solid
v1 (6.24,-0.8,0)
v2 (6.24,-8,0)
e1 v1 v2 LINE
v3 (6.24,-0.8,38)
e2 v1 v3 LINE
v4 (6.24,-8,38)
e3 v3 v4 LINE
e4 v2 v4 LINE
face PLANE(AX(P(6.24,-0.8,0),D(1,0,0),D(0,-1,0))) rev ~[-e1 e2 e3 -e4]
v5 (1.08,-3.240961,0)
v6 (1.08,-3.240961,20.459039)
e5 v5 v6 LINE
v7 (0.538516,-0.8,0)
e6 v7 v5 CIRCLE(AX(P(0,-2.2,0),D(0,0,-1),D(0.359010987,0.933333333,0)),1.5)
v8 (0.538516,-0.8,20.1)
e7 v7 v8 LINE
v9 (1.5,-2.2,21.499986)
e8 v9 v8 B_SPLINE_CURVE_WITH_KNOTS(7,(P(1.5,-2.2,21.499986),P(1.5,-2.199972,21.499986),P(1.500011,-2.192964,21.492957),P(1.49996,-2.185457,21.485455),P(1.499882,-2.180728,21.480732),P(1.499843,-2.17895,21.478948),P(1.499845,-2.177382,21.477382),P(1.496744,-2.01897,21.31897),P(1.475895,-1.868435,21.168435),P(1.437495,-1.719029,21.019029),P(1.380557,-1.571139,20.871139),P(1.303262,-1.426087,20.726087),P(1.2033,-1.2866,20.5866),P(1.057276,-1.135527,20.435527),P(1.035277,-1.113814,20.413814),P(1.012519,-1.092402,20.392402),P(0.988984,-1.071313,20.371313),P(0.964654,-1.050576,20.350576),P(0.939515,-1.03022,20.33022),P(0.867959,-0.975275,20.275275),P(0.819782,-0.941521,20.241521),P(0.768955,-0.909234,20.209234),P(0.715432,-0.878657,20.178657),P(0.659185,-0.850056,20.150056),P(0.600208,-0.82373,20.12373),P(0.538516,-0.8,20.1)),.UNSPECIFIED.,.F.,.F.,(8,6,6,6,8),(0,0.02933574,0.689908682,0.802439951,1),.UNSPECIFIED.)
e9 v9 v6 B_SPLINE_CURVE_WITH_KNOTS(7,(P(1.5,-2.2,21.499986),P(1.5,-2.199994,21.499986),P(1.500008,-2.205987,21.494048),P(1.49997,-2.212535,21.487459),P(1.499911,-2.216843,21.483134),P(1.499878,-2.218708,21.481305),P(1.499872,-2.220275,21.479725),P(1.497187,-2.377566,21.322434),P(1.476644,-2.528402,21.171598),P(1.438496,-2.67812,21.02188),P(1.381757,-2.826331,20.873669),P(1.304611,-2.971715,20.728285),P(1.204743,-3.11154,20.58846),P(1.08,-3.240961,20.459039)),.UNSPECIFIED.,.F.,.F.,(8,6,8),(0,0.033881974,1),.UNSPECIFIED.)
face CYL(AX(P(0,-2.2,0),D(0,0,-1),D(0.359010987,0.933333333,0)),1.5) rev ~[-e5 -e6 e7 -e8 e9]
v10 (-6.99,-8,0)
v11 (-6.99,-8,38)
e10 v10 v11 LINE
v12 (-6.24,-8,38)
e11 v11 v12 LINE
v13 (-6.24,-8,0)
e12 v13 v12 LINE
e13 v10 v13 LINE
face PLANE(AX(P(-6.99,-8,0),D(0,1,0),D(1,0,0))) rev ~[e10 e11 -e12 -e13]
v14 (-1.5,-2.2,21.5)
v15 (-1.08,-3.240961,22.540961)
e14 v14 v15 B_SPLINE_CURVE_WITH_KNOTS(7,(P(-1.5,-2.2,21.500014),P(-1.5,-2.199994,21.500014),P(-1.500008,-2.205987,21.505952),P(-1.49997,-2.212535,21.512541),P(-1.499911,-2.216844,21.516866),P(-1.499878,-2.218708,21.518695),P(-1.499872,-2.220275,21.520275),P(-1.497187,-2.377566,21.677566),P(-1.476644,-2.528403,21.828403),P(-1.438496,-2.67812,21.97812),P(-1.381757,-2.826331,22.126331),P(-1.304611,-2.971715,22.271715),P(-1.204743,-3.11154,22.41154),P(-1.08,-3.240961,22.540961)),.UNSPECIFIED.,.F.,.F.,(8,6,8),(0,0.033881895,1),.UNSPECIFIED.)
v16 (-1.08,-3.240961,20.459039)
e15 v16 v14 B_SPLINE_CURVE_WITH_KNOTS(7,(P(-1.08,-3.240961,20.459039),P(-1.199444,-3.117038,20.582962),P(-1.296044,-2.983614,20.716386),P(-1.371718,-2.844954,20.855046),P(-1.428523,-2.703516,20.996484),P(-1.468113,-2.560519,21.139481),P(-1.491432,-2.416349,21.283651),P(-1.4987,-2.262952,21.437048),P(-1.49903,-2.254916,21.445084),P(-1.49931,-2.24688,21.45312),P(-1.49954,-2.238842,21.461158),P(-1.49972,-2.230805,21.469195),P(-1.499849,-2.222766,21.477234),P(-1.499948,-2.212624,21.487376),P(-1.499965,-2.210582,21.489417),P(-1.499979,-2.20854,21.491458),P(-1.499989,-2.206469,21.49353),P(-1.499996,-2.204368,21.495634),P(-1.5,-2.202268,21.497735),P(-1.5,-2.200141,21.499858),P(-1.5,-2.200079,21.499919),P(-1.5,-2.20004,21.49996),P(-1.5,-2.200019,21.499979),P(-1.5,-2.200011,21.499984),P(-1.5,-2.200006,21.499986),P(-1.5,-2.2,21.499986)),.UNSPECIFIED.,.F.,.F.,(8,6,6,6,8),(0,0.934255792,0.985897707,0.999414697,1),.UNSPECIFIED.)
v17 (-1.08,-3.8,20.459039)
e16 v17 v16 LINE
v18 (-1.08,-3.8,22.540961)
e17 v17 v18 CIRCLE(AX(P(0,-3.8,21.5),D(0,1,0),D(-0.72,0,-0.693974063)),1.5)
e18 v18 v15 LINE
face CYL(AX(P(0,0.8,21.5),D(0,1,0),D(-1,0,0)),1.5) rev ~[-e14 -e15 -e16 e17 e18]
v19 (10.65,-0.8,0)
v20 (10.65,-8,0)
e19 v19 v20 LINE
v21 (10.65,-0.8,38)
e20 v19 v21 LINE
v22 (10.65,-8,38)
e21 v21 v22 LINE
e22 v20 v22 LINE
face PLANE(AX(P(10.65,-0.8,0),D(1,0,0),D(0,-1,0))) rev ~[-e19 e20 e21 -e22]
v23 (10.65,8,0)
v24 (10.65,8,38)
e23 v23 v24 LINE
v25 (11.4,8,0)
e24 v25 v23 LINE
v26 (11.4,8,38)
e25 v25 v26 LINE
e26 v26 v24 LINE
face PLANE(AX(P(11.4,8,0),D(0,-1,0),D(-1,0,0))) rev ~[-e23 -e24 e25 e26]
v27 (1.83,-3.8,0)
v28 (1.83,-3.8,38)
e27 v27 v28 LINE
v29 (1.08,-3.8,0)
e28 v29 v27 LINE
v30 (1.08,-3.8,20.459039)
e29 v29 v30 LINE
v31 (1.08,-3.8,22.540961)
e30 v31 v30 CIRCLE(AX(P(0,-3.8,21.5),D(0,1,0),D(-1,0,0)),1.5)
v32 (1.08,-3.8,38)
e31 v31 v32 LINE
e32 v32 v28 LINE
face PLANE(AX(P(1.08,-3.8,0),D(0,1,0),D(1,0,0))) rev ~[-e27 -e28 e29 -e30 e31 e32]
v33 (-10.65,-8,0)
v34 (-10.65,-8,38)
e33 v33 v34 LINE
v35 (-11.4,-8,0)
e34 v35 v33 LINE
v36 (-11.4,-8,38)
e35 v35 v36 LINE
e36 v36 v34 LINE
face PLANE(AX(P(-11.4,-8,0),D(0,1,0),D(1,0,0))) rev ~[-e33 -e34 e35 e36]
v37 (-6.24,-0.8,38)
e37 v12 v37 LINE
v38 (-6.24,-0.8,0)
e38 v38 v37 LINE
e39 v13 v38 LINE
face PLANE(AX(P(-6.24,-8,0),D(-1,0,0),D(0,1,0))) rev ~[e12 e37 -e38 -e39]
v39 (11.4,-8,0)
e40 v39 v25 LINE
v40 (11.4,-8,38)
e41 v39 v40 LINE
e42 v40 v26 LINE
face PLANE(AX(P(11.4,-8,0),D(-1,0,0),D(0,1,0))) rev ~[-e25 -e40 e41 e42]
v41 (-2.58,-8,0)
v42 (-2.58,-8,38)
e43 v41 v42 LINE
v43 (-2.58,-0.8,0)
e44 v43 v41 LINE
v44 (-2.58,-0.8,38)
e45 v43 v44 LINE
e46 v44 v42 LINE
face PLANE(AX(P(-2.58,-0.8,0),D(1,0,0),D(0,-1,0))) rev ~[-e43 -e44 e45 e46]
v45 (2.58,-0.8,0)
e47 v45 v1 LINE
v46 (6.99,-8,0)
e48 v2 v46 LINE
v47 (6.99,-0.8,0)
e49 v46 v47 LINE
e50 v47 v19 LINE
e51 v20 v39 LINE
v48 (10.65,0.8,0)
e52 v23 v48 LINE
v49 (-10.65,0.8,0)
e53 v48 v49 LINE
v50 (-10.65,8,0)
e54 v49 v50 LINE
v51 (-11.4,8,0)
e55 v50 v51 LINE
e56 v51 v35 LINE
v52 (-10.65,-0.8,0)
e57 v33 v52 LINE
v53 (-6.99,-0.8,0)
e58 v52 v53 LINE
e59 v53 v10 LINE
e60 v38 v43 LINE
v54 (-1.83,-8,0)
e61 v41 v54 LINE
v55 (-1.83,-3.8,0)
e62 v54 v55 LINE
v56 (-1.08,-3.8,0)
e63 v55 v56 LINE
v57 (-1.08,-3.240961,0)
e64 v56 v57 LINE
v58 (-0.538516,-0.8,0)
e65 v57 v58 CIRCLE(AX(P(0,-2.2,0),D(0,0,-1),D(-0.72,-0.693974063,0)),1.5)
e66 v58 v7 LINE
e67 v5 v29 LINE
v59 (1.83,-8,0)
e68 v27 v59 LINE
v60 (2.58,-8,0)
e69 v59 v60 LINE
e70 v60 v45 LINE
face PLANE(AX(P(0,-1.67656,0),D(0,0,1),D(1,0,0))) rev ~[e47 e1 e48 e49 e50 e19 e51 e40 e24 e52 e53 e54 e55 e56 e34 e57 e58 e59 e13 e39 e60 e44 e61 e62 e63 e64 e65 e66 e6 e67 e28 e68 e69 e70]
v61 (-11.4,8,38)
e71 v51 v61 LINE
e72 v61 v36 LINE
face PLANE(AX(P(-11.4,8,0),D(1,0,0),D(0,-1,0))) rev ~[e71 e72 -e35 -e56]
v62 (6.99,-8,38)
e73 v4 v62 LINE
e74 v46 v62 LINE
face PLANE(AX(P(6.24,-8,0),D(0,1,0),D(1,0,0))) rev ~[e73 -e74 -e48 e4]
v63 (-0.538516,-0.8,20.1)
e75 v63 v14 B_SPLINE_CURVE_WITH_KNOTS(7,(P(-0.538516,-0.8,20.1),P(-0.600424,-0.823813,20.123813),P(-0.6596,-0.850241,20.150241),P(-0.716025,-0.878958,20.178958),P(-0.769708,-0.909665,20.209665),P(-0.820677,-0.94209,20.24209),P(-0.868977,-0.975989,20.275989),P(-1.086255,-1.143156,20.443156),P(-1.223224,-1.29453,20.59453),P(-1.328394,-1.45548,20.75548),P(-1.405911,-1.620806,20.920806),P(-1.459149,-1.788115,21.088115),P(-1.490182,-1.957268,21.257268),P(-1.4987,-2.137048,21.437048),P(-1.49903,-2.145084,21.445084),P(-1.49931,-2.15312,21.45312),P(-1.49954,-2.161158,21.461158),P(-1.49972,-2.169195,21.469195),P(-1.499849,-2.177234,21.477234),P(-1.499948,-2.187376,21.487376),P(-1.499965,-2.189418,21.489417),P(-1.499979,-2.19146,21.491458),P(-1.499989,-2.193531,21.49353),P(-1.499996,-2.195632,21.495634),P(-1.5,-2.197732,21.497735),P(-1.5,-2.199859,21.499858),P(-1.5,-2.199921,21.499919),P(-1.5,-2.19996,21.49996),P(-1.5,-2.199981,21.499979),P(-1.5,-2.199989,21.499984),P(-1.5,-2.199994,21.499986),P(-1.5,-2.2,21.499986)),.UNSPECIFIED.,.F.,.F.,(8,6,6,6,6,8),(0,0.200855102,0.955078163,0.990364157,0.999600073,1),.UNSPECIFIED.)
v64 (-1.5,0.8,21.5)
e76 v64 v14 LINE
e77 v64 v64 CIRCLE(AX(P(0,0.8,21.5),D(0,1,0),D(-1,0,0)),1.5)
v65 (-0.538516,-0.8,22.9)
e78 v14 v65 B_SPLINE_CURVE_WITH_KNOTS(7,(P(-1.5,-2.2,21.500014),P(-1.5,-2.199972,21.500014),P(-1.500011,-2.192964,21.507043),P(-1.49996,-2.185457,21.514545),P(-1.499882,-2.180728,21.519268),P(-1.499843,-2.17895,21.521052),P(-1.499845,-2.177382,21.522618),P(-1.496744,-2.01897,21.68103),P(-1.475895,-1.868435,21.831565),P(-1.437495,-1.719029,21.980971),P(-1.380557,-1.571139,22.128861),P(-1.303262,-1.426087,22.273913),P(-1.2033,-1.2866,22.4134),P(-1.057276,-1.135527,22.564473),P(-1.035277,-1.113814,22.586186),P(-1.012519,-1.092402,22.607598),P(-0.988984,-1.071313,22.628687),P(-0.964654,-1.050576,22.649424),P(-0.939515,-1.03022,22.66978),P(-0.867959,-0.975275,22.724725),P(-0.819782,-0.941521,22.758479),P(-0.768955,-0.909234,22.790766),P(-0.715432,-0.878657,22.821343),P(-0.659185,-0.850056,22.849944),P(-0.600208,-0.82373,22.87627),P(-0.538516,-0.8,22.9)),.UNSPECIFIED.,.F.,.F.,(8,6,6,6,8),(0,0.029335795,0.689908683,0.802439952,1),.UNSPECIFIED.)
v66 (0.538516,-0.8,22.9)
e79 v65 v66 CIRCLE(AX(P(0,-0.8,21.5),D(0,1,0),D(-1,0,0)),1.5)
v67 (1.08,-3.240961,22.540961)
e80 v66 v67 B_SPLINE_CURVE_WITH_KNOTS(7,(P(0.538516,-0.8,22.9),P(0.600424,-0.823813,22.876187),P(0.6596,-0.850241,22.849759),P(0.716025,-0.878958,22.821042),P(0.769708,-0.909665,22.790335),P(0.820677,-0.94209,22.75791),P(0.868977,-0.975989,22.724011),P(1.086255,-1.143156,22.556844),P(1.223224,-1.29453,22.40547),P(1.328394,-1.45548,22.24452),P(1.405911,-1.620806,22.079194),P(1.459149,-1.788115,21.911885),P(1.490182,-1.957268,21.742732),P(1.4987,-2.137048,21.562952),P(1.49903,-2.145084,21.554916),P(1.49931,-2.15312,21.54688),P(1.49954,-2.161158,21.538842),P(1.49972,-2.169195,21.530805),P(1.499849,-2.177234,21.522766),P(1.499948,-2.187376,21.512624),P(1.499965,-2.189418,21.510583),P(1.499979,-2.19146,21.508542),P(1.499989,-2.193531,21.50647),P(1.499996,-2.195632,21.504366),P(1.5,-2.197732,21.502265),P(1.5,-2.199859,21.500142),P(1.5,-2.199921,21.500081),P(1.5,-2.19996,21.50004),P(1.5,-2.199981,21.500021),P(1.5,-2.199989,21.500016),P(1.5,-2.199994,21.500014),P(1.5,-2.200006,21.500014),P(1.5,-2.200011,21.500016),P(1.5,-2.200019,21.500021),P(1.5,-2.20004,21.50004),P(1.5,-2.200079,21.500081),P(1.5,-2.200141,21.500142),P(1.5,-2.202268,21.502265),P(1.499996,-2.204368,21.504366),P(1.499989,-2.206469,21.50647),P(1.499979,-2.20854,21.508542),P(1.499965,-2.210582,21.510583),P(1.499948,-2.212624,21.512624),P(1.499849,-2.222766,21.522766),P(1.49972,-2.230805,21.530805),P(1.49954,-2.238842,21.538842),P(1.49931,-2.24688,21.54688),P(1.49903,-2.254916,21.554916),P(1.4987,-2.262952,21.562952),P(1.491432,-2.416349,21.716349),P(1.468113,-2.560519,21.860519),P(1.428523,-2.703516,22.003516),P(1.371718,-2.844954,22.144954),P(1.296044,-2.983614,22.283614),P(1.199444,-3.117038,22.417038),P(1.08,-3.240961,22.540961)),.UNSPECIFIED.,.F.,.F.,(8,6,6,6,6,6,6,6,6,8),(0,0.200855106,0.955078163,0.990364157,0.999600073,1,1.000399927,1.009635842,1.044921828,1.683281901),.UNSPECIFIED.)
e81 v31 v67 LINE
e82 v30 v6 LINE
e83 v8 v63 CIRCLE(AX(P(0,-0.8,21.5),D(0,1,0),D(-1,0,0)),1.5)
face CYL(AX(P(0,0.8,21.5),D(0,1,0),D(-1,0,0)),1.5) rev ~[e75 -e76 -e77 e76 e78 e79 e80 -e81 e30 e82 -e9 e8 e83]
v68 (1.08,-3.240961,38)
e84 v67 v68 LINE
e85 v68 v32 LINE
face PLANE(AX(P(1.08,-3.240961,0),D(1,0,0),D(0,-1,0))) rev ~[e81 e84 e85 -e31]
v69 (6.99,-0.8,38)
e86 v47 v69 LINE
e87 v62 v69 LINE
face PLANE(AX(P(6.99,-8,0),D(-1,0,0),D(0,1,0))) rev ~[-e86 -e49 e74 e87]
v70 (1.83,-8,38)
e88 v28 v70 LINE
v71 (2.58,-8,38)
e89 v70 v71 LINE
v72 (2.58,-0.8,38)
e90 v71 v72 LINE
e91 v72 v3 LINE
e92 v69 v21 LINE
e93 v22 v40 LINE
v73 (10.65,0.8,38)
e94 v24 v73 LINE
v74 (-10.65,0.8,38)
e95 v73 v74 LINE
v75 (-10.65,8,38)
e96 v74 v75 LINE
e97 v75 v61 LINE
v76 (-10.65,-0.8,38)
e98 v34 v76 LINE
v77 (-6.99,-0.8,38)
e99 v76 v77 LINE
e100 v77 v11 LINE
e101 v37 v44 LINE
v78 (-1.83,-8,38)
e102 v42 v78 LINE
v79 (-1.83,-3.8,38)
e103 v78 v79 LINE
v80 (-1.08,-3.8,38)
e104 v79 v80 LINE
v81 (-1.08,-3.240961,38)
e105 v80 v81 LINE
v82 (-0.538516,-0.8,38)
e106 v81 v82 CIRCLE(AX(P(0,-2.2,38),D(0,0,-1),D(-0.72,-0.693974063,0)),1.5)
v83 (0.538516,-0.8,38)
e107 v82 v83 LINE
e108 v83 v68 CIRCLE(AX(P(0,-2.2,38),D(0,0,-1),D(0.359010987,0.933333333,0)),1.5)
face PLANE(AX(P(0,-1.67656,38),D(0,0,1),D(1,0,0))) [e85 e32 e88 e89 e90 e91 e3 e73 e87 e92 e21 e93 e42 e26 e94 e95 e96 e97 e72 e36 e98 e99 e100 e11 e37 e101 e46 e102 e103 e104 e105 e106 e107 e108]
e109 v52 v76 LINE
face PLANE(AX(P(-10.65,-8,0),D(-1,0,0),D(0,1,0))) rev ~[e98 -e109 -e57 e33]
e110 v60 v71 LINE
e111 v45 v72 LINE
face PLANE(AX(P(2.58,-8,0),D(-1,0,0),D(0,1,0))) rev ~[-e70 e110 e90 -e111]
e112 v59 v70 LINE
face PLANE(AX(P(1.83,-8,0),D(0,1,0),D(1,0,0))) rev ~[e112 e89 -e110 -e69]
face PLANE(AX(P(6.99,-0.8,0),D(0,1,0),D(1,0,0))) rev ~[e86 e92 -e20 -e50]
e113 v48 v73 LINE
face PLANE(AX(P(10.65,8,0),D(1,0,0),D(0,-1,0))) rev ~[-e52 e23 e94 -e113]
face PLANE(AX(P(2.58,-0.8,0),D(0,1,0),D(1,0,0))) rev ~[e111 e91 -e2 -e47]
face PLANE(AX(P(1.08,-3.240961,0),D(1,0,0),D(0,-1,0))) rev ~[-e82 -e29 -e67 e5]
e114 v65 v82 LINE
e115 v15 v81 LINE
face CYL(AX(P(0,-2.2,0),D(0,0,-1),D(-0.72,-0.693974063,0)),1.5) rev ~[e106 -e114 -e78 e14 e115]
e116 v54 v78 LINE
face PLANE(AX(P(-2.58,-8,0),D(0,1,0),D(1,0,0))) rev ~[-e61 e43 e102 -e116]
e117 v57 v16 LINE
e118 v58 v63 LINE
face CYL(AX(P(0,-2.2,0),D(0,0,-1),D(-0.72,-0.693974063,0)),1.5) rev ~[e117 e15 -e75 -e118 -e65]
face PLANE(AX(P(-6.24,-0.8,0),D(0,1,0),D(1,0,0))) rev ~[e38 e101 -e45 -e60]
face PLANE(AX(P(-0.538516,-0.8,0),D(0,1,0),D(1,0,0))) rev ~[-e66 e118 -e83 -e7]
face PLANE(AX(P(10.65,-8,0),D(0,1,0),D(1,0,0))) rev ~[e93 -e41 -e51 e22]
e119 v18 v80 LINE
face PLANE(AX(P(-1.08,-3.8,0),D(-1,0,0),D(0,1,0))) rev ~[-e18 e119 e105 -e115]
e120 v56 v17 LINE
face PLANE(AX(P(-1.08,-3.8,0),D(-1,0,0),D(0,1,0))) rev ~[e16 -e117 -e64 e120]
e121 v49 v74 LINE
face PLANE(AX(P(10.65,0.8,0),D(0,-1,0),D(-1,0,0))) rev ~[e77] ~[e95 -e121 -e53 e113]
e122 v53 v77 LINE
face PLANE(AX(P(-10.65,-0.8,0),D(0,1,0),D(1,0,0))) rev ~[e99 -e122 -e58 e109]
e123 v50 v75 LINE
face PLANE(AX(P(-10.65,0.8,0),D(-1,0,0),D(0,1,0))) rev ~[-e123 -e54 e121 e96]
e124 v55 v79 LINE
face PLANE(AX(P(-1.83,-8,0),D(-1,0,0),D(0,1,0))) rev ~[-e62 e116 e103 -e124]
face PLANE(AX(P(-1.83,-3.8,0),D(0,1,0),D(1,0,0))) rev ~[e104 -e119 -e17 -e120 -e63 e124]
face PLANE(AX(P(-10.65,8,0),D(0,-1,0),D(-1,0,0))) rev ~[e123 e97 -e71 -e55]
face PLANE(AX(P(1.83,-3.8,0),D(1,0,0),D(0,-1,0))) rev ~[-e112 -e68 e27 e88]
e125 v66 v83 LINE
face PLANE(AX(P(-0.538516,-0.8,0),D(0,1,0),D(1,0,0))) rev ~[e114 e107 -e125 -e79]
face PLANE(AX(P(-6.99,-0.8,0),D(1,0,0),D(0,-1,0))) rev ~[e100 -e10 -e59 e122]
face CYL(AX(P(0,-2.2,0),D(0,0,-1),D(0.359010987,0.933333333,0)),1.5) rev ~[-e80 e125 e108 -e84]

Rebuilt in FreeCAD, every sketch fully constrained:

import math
import FreeCAD as App
import Part
import Sketcher

V = App.Vector
Q = App.Units.Quantity

doc = App.newDocument("Part")
body = doc.addObject("PartDesign::Body", "Body")

sketch1 = body.newObject("Sketcher::SketchObject", "Sketch")
sketch1.AttachmentSupport = (doc.getObject("XY_Plane"), [""])
sketch1.MapMode = "FlatFace"
sketch1.addGeometry([
    Part.LineSegment(V(10.7, -8, 0), V(11.4, -8, 0)),
    Part.LineSegment(V(11.4, -8, 0), V(11.4, 8, 0)),
    Part.LineSegment(V(11.4, 8, 0), V(10.7, 8, 0)),
    Part.LineSegment(V(10.7, 8, 0), V(10.7, 0.8, 0)),
    Part.LineSegment(V(10.7, 0.8, 0), V(-10.7, 0.8, 0)),
    Part.LineSegment(V(-10.7, 0.8, 0), V(-10.7, 8, 0)),
    Part.LineSegment(V(-10.7, 8, 0), V(-11.4, 8, 0)),
    Part.LineSegment(V(-11.4, 8, 0), V(-11.4, -8, 0)),
    Part.LineSegment(V(-11.4, -8, 0), V(-10.7, -8, 0)),
    Part.LineSegment(V(-10.7, -8, 0), V(-10.7, -0.8, 0)),
    Part.LineSegment(V(-10.7, -0.8, 0), V(-7, -0.8, 0)),
    Part.LineSegment(V(-7, -0.8, 0), V(-7, -8, 0)),
    Part.LineSegment(V(-7, -8, 0), V(-6.2, -8, 0)),
    Part.LineSegment(V(-6.2, -8, 0), V(-6.2, -0.8, 0)),
    Part.LineSegment(V(-6.2, -0.8, 0), V(-2.6, -0.8, 0)),
    Part.LineSegment(V(-2.6, -0.8, 0), V(-2.6, -8, 0)),
    Part.LineSegment(V(-2.6, -8, 0), V(-1.8, -8, 0)),
    Part.LineSegment(V(-1.8, -8, 0), V(-1.8, -3.8, 0)),
    Part.LineSegment(V(-1.8, -3.8, 0), V(-1.1, -3.8, 0)),
    Part.LineSegment(V(-1.1, -3.8, 0), V(-1.1, -3.2, 0)),
    Part.ArcOfCircle(Part.Circle(V(0, -2.2, 0), V(0, 0, 1), 1.5), math.radians(111), math.radians(224)),
    Part.LineSegment(V(-0.5, -0.8, 0), V(0.5, -0.8, 0)),
    Part.ArcOfCircle(Part.Circle(V(0, -2.2, 0), V(0, 0, 1), 1.5), math.radians(-44), math.radians(69)),
    Part.LineSegment(V(1.1, -3.2, 0), V(1.1, -3.8, 0)),
    Part.LineSegment(V(1.1, -3.8, 0), V(1.8, -3.8, 0)),
    Part.LineSegment(V(1.8, -3.8, 0), V(1.8, -8, 0)),
    Part.LineSegment(V(1.8, -8, 0), V(2.6, -8, 0)),
    Part.LineSegment(V(2.6, -8, 0), V(2.6, -0.8, 0)),
    Part.LineSegment(V(2.6, -0.8, 0), V(6.2, -0.8, 0)),
    Part.LineSegment(V(6.2, -0.8, 0), V(6.2, -8, 0)),
    Part.LineSegment(V(6.2, -8, 0), V(7, -8, 0)),
    Part.LineSegment(V(7, -8, 0), V(7, -0.8, 0)),
    Part.LineSegment(V(7, -0.8, 0), V(10.7, -0.8, 0)),
    Part.LineSegment(V(10.7, -0.8, 0), V(10.7, -8, 0)),
], False)
sketch1.addConstraint([
    Sketcher.Constraint("Coincident", 0, 2, 1, 1),
    Sketcher.Constraint("Coincident", 1, 2, 2, 1),
    Sketcher.Constraint("Coincident", 2, 2, 3, 1),
    Sketcher.Constraint("Coincident", 3, 2, 4, 1),
    Sketcher.Constraint("Coincident", 4, 2, 5, 1),
    Sketcher.Constraint("Coincident", 5, 2, 6, 1),
    Sketcher.Constraint("Coincident", 6, 2, 7, 1),
    Sketcher.Constraint("Coincident", 7, 2, 8, 1),
    Sketcher.Constraint("Coincident", 8, 2, 9, 1),
    Sketcher.Constraint("Coincident", 9, 2, 10, 1),
    Sketcher.Constraint("Coincident", 10, 2, 11, 1),
    Sketcher.Constraint("Coincident", 11, 2, 12, 1),
    Sketcher.Constraint("Coincident", 12, 2, 13, 1),
    Sketcher.Constraint("Coincident", 13, 2, 14, 1),
    Sketcher.Constraint("Coincident", 14, 2, 15, 1),
    Sketcher.Constraint("Coincident", 15, 2, 16, 1),
    Sketcher.Constraint("Coincident", 16, 2, 17, 1),
    Sketcher.Constraint("Coincident", 17, 2, 18, 1),
    Sketcher.Constraint("Coincident", 18, 2, 19, 1),
    Sketcher.Constraint("Coincident", 19, 2, 20, 2),
    Sketcher.Constraint("Coincident", 20, 1, 21, 1),
    Sketcher.Constraint("Coincident", 21, 2, 22, 2),
    Sketcher.Constraint("Coincident", 22, 1, 23, 1),
    Sketcher.Constraint("Coincident", 23, 2, 24, 1),
    Sketcher.Constraint("Coincident", 24, 2, 25, 1),
    Sketcher.Constraint("Coincident", 25, 2, 26, 1),
    Sketcher.Constraint("Coincident", 26, 2, 27, 1),
    Sketcher.Constraint("Coincident", 27, 2, 28, 1),
    Sketcher.Constraint("Coincident", 28, 2, 29, 1),
    Sketcher.Constraint("Coincident", 29, 2, 30, 1),
    Sketcher.Constraint("Coincident", 30, 2, 31, 1),
    Sketcher.Constraint("Coincident", 31, 2, 32, 1),
    Sketcher.Constraint("Coincident", 32, 2, 33, 1),
    Sketcher.Constraint("Coincident", 33, 2, 0, 1),
    Sketcher.Constraint("Horizontal", 0),
    Sketcher.Constraint("Vertical", 1),
    Sketcher.Constraint("Horizontal", 2),
    Sketcher.Constraint("Vertical", 3),
    Sketcher.Constraint("Horizontal", 4),
    Sketcher.Constraint("Vertical", 5),
    Sketcher.Constraint("Horizontal", 6),
    Sketcher.Constraint("Vertical", 7),
    Sketcher.Constraint("Horizontal", 8),
    Sketcher.Constraint("Vertical", 9),
    Sketcher.Constraint("Horizontal", 10),
    Sketcher.Constraint("Vertical", 11),
    Sketcher.Constraint("Horizontal", 12),
    Sketcher.Constraint("Vertical", 13),
    Sketcher.Constraint("Horizontal", 14),
    Sketcher.Constraint("Vertical", 15),
    Sketcher.Constraint("Horizontal", 16),
    Sketcher.Constraint("Vertical", 17),
    Sketcher.Constraint("Horizontal", 18),
    Sketcher.Constraint("Vertical", 19),
    Sketcher.Constraint("Horizontal", 21),
    Sketcher.Constraint("Vertical", 23),
    Sketcher.Constraint("Horizontal", 24),
    Sketcher.Constraint("Vertical", 25),
    Sketcher.Constraint("Horizontal", 26),
    Sketcher.Constraint("Vertical", 27),
    Sketcher.Constraint("Horizontal", 28),
    Sketcher.Constraint("Vertical", 29),
    Sketcher.Constraint("Horizontal", 30),
    Sketcher.Constraint("Vertical", 31),
    Sketcher.Constraint("Horizontal", 32),
    Sketcher.Constraint("Vertical", 33),
    Sketcher.Constraint("Coincident", 22, 3, 20, 3),
    Sketcher.Constraint("Equal", 20, 22),
    Sketcher.Constraint("Symmetric", 0, 2, 6, 2, -1, 1),
    Sketcher.Constraint("Symmetric", 2, 2, 8, 2, -1, 1),
    Sketcher.Constraint("Symmetric", 4, 2, 32, 2, -1, 1),
    Sketcher.Constraint("Symmetric", 2, 2, 5, 2, -2),
    Sketcher.Constraint("Symmetric", 19, 2, 22, 1, -2),
    Sketcher.Constraint("Symmetric", 17, 2, 24, 2, -2),
    Sketcher.Constraint("Symmetric", 15, 2, 26, 2, -2),
    Sketcher.Constraint("Symmetric", 13, 2, 28, 2, -2),
    Sketcher.Constraint("Symmetric", 11, 2, 30, 2, -2),
    Sketcher.Constraint("Horizontal", 8, 2, 11, 2),
    Sketcher.Constraint("Horizontal", 10, 2, 13, 2),
    Sketcher.Constraint("Horizontal", 12, 2, 15, 2),
    Sketcher.Constraint("Horizontal", 14, 2, 20, 1),
    Sketcher.Constraint("Horizontal", 28, 2, 31, 2),
    Sketcher.Constraint("Equal", 8, 12),
    Sketcher.Constraint("Equal", 10, 14),
    Sketcher.Constraint("Equal", 12, 16),
    Sketcher.Constraint("Equal", 16, 18),
    Sketcher.Constraint("Radius", 20, Q("1.5 mm")),
    Sketcher.Constraint("DistanceY", 1, 1, 1, 2, Q("16 mm")),
    Sketcher.Constraint("DistanceX", 4, 2, 4, 1, Q("21.3 mm")),
    Sketcher.Constraint("DistanceY", 3, 2, 3, 1, Q("7.2 mm")),
    Sketcher.Constraint("DistanceY", 17, 1, 17, 2, Q("4.2 mm")),
    Sketcher.Constraint("DistanceY", 20, 3, 3, 2, Q("3 mm")),
    Sketcher.Constraint("DistanceX", 0, 1, 0, 2, Q("0.75 mm")),
    Sketcher.Constraint("DistanceX", 10, 1, 10, 2, Q("3.66 mm")),
])
pad1 = body.newObject("PartDesign::Pad", "Pad")
pad1.Profile = sketch1
pad1.Length = 38

sketch2 = body.newObject("Sketcher::SketchObject", "Sketch001")
sketch2.AttachmentSupport = (doc.getObject("XZ_Plane"), [""])
sketch2.MapMode = "FlatFace"
sketch2.AttachmentOffset = App.Placement(V(0, 0, -0.8), App.Rotation())
sketch2.addGeometry(Part.Circle(V(0, 21.5, 0), V(0, 0, 1), 1.5), False)
sketch2.addConstraint([
    Sketcher.Constraint("PointOnObject", 0, 3, -2),
    Sketcher.Constraint("Diameter", 0, Q("3 mm")),
    Sketcher.Constraint("DistanceY", -1, 1, 0, 3, Q("21.5 mm")),
])
pocket1 = body.newObject("PartDesign::Pocket", "Pocket")
pocket1.Profile = sketch2
pocket1.Length = 11
pocket1.Reversed = True

doc.recompute()
